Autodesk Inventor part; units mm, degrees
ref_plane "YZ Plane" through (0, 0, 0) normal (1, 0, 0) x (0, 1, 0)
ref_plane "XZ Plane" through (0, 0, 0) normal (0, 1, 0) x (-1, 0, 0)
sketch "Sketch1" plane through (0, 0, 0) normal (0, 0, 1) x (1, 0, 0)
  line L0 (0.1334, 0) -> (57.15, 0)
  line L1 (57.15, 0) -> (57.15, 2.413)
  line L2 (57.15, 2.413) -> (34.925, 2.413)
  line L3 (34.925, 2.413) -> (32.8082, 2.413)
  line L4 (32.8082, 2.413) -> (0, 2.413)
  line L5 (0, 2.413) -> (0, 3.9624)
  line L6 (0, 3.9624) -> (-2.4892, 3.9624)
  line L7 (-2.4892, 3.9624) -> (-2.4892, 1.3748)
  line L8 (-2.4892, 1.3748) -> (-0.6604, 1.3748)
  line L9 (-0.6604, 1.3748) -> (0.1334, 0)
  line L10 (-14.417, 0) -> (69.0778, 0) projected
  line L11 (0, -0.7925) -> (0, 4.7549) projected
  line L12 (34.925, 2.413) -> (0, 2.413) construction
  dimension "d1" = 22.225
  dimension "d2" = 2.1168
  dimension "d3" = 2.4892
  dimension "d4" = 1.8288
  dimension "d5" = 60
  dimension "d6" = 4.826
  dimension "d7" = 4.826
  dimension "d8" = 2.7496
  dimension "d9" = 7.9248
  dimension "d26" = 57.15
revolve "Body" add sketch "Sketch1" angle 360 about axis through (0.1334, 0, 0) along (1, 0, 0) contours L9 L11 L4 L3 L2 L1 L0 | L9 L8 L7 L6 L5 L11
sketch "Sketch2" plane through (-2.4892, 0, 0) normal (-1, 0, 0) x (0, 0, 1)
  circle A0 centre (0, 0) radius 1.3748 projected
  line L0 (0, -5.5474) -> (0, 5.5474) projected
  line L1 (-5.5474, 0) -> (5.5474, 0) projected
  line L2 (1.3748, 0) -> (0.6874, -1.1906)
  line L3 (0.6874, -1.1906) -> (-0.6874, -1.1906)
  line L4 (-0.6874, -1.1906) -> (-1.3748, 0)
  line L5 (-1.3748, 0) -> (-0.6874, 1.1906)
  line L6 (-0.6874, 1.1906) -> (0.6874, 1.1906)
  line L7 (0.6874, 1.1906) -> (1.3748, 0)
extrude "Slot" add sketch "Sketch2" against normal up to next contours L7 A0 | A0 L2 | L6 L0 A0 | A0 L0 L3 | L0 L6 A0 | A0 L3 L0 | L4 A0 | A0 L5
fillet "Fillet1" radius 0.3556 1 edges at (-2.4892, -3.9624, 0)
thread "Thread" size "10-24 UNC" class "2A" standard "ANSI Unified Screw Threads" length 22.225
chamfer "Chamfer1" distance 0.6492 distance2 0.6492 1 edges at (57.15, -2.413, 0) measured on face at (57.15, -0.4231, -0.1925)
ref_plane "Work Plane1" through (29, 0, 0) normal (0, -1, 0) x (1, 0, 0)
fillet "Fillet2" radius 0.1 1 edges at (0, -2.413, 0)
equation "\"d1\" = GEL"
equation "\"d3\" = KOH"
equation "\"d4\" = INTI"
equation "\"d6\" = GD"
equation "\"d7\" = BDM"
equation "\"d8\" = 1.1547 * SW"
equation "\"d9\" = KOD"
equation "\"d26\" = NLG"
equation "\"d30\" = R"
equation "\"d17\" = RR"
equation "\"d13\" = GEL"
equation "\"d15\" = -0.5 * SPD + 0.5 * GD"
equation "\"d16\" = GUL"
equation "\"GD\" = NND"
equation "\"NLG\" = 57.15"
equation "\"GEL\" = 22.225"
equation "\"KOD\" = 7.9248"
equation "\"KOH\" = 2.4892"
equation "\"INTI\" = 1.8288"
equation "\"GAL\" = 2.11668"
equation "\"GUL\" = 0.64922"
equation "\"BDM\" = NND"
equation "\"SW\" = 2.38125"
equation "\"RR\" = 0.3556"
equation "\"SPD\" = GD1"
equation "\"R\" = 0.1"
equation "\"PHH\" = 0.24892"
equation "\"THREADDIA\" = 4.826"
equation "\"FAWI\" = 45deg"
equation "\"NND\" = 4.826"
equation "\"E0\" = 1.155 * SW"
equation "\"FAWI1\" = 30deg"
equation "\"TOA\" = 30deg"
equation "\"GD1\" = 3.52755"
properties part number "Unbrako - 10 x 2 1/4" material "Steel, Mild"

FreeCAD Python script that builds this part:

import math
import FreeCAD as App
import Part
import Sketcher

V = App.Vector
Q = App.Units.Quantity


def edges_at(feature, points):
    """Names of the edges that pass closest to the given points."""
    edges = feature.Shape.Edges
    near = lambda p: min(range(len(edges)), key=lambda i: edges[i].distToShape(Part.Vertex(*p))[0])
    return sorted({f"Edge{near(p) + 1}" for p in points})

doc = App.newDocument("Part")
body = doc.addObject("PartDesign::Body", "Body")

# Sketch on XY plane
sketch1 = body.newObject("Sketcher::SketchObject", "Sketch")
sketch1.AttachmentSupport = (doc.getObject("XY_Plane"), [""])
sketch1.MapMode = "FlatFace"
sketch1.addGeometry([
    Part.LineSegment(V(0.1334, 0, 0), V(57.15, 0, 0)),  # 0
    Part.LineSegment(V(57.15, 0, 0), V(57.15, 2.413, 0)),  # 1
    Part.LineSegment(V(57.15, 2.413, 0), V(0, 2.413, 0)),  # 2
    Part.LineSegment(V(0, 2.413, 0), V(0, 3.9624, 0)),  # 3
    Part.LineSegment(V(0, 3.9624, 0), V(-2.4892, 3.9624, 0)),  # 4
    Part.LineSegment(V(-2.4892, 3.9624, 0), V(-2.4892, 1.3748, 0)),  # 5
    Part.LineSegment(V(-2.4892, 1.3748, 0), V(-0.6604, 1.3748, 0)),  # 6
    Part.LineSegment(V(-0.6604, 1.3748, 0), V(0.1334, 0, 0)),  # 7
], False)
sketch1.addConstraint([
    Sketcher.Constraint("Coincident", 0, 2, 1, 1),
    Sketcher.Constraint("Coincident", 1, 2, 2, 1),
    Sketcher.Constraint("Coincident", 2, 2, 3, 1),
    Sketcher.Constraint("Coincident", 3, 2, 4, 1),
    Sketcher.Constraint("Coincident", 4, 2, 5, 1),
    Sketcher.Constraint("Coincident", 5, 2, 6, 1),
    Sketcher.Constraint("Coincident", 6, 2, 7, 1),
    Sketcher.Constraint("Coincident", 7, 2, 0, 1),
    Sketcher.Constraint("Horizontal", 0),
    Sketcher.Constraint("Vertical", 1),
    Sketcher.Constraint("Horizontal", 2),
    Sketcher.Constraint("Vertical", 3),
    Sketcher.Constraint("Horizontal", 4),
    Sketcher.Constraint("Vertical", 5),
    Sketcher.Constraint("Horizontal", 6),
    Sketcher.Constraint("PointOnObject", 0, 2, -1),
    Sketcher.Constraint("PointOnObject", 2, 2, -2),
    Sketcher.Constraint("DistanceX", 2, 2, 2, 1, Q("2.25 in")),
    Sketcher.Constraint("DistanceX", 4, 2, 4, 1, Q("0.098 in")),
    Sketcher.Constraint("DistanceX", 6, 1, 6, 2, Q("0.072 in")),
    Sketcher.Constraint("DistanceY", 1, 1, 1, 2, Q("0.095 in")),
    Sketcher.Constraint("DistanceY", 3, 1, 3, 2, Q("0.061 in")),
    Sketcher.Constraint("Distance", 7, Q("0.0625 in")),
    Sketcher.Constraint("DistanceX", 6, 2, 7, 2, Q("0.031252 in")),
])
revolution = body.newObject("PartDesign::Revolution", "Revolution")
revolution.Profile = sketch1
revolution.ReferenceAxis = (sketch1, ["H_Axis"])
revolution.Angle = 360

# Sketch on YZ plane
sketch2 = body.newObject("Sketcher::SketchObject", "Sketch001")
sketch2.AttachmentSupport = (doc.getObject("YZ_Plane"), [""])
sketch2.MapMode = "FlatFace"
sketch2.AttachmentOffset = App.Placement(V(0, 0, -0.098 * 25.4), App.Rotation())
sketch2.addGeometry([
    Part.LineSegment(V(1.1906, 0.6874, 0), V(0, 1.3748, 0)),  # 0
    Part.ArcOfCircle(Part.Circle(V(0, 0, 0), V(0, 0, 1), 1.3748), math.radians(30.000244), math.radians(90)),  # 1
    Part.ArcOfCircle(Part.Circle(V(0, 0, 0), V(0, 0, 1), 1.3748), math.radians(90), math.radians(149.999756)),  # 2
    Part.LineSegment(V(0, 1.3748, 0), V(-1.1906, 0.6874, 0)),  # 3
    Part.ArcOfCircle(Part.Circle(V(0, 0, 0), V(0, 0, 1), 1.3748), math.radians(-30.000244), math.radians(30.000244)),  # 4
    Part.LineSegment(V(1.1906, 0.6874, 0), V(1.1906, -0.6874, 0)),  # 5
    Part.LineSegment(V(-1.1906, 0.6874, 0), V(-1.1906, -0.6874, 0)),  # 6
    Part.ArcOfCircle(Part.Circle(V(0, 0, 0), V(0, 0, 1), 1.3748), math.radians(149.999756), math.radians(210.000244)),  # 7
    Part.LineSegment(V(-1.1906, -0.6874, 0), V(0, -1.3748, 0)),  # 8
    Part.ArcOfCircle(Part.Circle(V(0, 0, 0), V(0, 0, 1), 1.3748), math.radians(-149.999756), math.radians(-90)),  # 9
    Part.ArcOfCircle(Part.Circle(V(0, 0, 0), V(0, 0, 1), 1.3748), math.radians(-90), math.radians(-30.000244)),  # 10
    Part.LineSegment(V(0, -1.3748, 0), V(1.1906, -0.6874, 0)),  # 11
], False)
sketch2.addConstraint([
    Sketcher.Constraint("Coincident", 0, 1, 1, 1),
    Sketcher.Constraint("Coincident", 1, 2, 0, 2),
    Sketcher.Constraint("Coincident", 2, 1, 3, 1),
    Sketcher.Constraint("Coincident", 3, 2, 2, 2),
    Sketcher.Constraint("Coincident", 4, 1, 5, 2),
    Sketcher.Constraint("Coincident", 5, 1, 4, 2),
    Sketcher.Constraint("Coincident", 6, 1, 7, 1),
    Sketcher.Constraint("Coincident", 7, 2, 6, 2),
    Sketcher.Constraint("Coincident", 8, 1, 9, 1),
    Sketcher.Constraint("Coincident", 9, 2, 8, 2),
    Sketcher.Constraint("Coincident", 10, 1, 11, 1),
    Sketcher.Constraint("Coincident", 11, 2, 10, 2),
    Sketcher.Constraint("Vertical", 5),
    Sketcher.Constraint("Vertical", 6),
    Sketcher.Constraint("Coincident", 1, 3, -1, 1),
    Sketcher.Constraint("Coincident", 2, 3, -1, 1),
    Sketcher.Constraint("Coincident", 4, 3, -1, 1),
    Sketcher.Constraint("Coincident", 7, 3, -1, 1),
    Sketcher.Constraint("Coincident", 9, 3, -1, 1),
    Sketcher.Constraint("Coincident", 10, 3, -1, 1),
    Sketcher.Constraint("Coincident", 2, 1, 1, 2),
    Sketcher.Constraint("Coincident", 5, 1, 0, 1),
    Sketcher.Constraint("Coincident", 6, 1, 3, 2),
    Sketcher.Constraint("Coincident", 8, 1, 7, 2),
    Sketcher.Constraint("Coincident", 10, 1, 9, 2),
    Sketcher.Constraint("PointOnObject", 1, 2, -2),
    Sketcher.Constraint("PointOnObject", 9, 2, -2),
    Sketcher.Constraint("Parallel", 0, 8),
    Sketcher.Constraint("Parallel", 3, 11),
    Sketcher.Constraint("Angle", 0, Q("149.9998 deg")),
    Sketcher.Constraint("Radius", 1, Q("1.3748 mm")),
])
pad1 = body.newObject("PartDesign::Pad", "Pad")
pad1.Profile = sketch2
pad1.Length = Q("0.076189 in")
doc.recompute()

fillet = body.newObject("PartDesign::Fillet", "Fillet")
fillet.Base = (pad1, edges_at(pad1, [(-2.489, -3.962, 0)]))
fillet.Radius = Q("0.014 in")
doc.recompute()

chamfer = body.newObject("PartDesign::Chamfer", "Chamfer")
chamfer.Base = (fillet, edges_at(fillet, [(57.15, -2.413, 0)]))
chamfer.ChamferType = "Two distances"
chamfer.Size = 0.6492
chamfer.Size2 = 0.6492
doc.recompute()

fillet2 = body.newObject("PartDesign::Fillet", "Fillet001")
fillet2.Base = (chamfer, edges_at(chamfer, [(0, -2.413, 0)]))
fillet2.Radius = 0.1

doc.recompute()
